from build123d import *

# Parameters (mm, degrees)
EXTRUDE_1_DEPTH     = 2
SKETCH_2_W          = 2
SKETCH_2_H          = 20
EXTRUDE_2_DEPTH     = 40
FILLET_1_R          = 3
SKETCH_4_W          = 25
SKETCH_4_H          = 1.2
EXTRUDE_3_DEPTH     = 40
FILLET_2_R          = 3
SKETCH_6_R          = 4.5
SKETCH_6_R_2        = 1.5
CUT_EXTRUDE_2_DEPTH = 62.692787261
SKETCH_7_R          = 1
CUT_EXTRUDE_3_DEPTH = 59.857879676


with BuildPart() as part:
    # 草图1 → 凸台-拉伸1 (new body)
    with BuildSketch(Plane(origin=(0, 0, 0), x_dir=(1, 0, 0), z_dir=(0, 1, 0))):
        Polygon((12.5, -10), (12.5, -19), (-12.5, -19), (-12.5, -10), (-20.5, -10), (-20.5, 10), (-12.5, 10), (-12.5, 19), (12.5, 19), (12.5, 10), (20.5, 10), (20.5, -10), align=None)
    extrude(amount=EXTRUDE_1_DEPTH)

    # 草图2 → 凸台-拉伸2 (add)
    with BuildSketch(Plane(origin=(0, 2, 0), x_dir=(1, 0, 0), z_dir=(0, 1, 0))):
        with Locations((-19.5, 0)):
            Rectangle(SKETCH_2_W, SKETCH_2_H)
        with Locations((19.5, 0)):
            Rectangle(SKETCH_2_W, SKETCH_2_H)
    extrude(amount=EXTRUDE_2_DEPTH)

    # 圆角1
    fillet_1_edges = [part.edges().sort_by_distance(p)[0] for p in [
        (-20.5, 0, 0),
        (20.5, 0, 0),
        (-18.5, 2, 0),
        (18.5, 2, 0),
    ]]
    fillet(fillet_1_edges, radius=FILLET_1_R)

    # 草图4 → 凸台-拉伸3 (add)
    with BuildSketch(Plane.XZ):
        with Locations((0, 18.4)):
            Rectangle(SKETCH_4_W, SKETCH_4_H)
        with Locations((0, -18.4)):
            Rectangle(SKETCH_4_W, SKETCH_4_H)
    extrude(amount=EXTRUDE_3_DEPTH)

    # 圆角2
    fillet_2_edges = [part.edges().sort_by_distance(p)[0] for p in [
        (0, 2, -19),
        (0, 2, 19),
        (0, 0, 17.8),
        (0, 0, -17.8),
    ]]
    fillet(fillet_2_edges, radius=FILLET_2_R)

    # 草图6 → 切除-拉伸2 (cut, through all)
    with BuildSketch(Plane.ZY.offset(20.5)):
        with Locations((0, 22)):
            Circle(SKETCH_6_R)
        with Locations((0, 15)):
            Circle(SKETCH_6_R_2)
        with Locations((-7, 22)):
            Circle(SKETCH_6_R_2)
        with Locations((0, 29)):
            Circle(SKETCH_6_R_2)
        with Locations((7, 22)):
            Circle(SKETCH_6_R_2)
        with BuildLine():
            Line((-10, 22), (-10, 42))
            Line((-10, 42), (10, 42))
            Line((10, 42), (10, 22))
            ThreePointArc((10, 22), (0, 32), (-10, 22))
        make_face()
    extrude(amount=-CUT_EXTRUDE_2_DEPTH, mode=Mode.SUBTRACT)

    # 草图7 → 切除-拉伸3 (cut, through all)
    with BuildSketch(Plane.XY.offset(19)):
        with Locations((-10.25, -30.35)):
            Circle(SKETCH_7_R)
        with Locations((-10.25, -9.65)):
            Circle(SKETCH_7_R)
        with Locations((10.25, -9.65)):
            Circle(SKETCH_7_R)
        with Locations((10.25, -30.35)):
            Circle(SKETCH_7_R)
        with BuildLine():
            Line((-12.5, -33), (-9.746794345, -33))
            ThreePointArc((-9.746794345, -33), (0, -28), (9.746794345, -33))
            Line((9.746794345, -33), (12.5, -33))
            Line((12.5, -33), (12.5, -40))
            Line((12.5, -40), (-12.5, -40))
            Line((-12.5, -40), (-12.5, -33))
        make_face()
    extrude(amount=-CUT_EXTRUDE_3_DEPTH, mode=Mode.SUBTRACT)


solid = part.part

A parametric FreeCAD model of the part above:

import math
import FreeCAD as App
import Part
import Sketcher

V = App.Vector
Q = App.Units.Quantity


def edges_at(feature, points):
    """Names of the edges that pass closest to the given points."""
    edges = feature.Shape.Edges
    near = lambda p: min(range(len(edges)), key=lambda i: edges[i].distToShape(Part.Vertex(*p))[0])
    return sorted({f"Edge{near(p) + 1}" for p in points})


def add_polygon(sketch, points):
    """Adds a closed chain of lines whose ends are joined by coincident constraints."""
    first, n = sketch.GeometryCount, len(points)
    for a, b in zip(points, points[1:] + points[:1]):
        sketch.addGeometry(Part.LineSegment(App.Vector(*a, 0), App.Vector(*b, 0)), False)
    for i in range(n):
        sketch.addConstraint(Sketcher.Constraint("Coincident", first + i, 2, first + (i + 1) % n, 1))

doc = App.newDocument("Part")
body = doc.addObject("PartDesign::Body", "Body")

sketch1 = body.newObject("Sketcher::SketchObject", "Sketch")
sketch1.AttachmentSupport = (doc.getObject("XZ_Plane"), [""])
sketch1.MapMode = "FlatFace"
add_polygon(sketch1, [(12, 19), (12, 10), (20, 10), (20, -10), (12, -10), (12, -19), (-12, -19), (-12, -10), (-20, -10), (-20, 10), (-12, 10), (-12, 19)])
sketch1.addConstraint(Sketcher.Constraint("Vertical", 0))
sketch1.addConstraint(Sketcher.Constraint("Horizontal", 1))
sketch1.addConstraint(Sketcher.Constraint("Vertical", 2))
sketch1.addConstraint(Sketcher.Constraint("Horizontal", 3))
sketch1.addConstraint(Sketcher.Constraint("Vertical", 4))
sketch1.addConstraint(Sketcher.Constraint("Horizontal", 5))
sketch1.addConstraint(Sketcher.Constraint("Vertical", 6))
sketch1.addConstraint(Sketcher.Constraint("Horizontal", 7))
sketch1.addConstraint(Sketcher.Constraint("Vertical", 8))
sketch1.addConstraint(Sketcher.Constraint("Horizontal", 9))
sketch1.addConstraint(Sketcher.Constraint("Vertical", 10))
sketch1.addConstraint(Sketcher.Constraint("Horizontal", 11))
sketch1.addConstraint(Sketcher.Constraint("Symmetric", 0, 2, 6, 2, -1, 1))
sketch1.addConstraint(Sketcher.Constraint("Symmetric", 2, 2, 8, 2, -1, 1))
sketch1.addConstraint(Sketcher.Constraint("Symmetric", 4, 2, 10, 2, -1, 1))
sketch1.addConstraint(Sketcher.Constraint("Symmetric", 3, 2, 6, 2, -2))
sketch1.addConstraint(Sketcher.Constraint("DistanceX", 1, 1, 1, 2, Q("8 mm")))
sketch1.addConstraint(Sketcher.Constraint("DistanceX", 5, 2, 5, 1, Q("25 mm")))
sketch1.addConstraint(Sketcher.Constraint("DistanceY", 0, 2, 0, 1, Q("9 mm")))
sketch1.addConstraint(Sketcher.Constraint("DistanceY", 2, 2, 2, 1, Q("20 mm")))
pad1 = body.newObject("PartDesign::Pad", "Pad")
pad1.Profile = sketch1
pad1.Length = 2
pad1.Reversed = True

sketch2 = body.newObject("Sketcher::SketchObject", "Sketch001")
sketch2.AttachmentSupport = (doc.getObject("XZ_Plane"), [""])
sketch2.MapMode = "FlatFace"
sketch2.AttachmentOffset = App.Placement(V(0, 0, -2), App.Rotation())
add_polygon(sketch2, [(-20.5, -10), (-20.5, 10), (-18.5, 10), (-18.5, -10)])
add_polygon(sketch2, [(18.5, -10), (18.5, 10), (20.5, 10), (20.5, -10)])
sketch2.addConstraint(Sketcher.Constraint("Vertical", 0))
sketch2.addConstraint(Sketcher.Constraint("Horizontal", 1))
sketch2.addConstraint(Sketcher.Constraint("Vertical", 2))
sketch2.addConstraint(Sketcher.Constraint("Horizontal", 3))
sketch2.addConstraint(Sketcher.Constraint("Vertical", 4))
sketch2.addConstraint(Sketcher.Constraint("Horizontal", 5))
sketch2.addConstraint(Sketcher.Constraint("Vertical", 6))
sketch2.addConstraint(Sketcher.Constraint("Horizontal", 7))
sketch2.addConstraint(Sketcher.Constraint("Symmetric", 2, 2, 4, 2, -1, 1))
sketch2.addConstraint(Sketcher.Constraint("Symmetric", 0, 2, 6, 2, -1, 1))
sketch2.addConstraint(Sketcher.Constraint("Horizontal", 1, 2, 4, 2))
sketch2.addConstraint(Sketcher.Constraint("DistanceX", 1, 1, 1, 2, Q("2 mm")))
sketch2.addConstraint(Sketcher.Constraint("DistanceY", 0, 1, 0, 2, Q("20 mm")))
sketch2.addConstraint(Sketcher.Constraint("DistanceX", 1, 2, 4, 2, Q("37 mm")))
pad2 = body.newObject("PartDesign::Pad", "Pad001")
pad2.Profile = sketch2
pad2.Length = 40
pad2.Reversed = True
doc.recompute()

fillet = body.newObject("PartDesign::Fillet", "Fillet")
fillet.Base = (pad2, edges_at(pad2, [
    (-20.5, 0, 0),
    (20.5, 0, 0),
    (-18.5, 2, 0),
    (18.5, 2, 0),
]))
fillet.Radius = 3

sketch3 = body.newObject("Sketcher::SketchObject", "Sketch002")
sketch3.AttachmentSupport = (doc.getObject("XZ_Plane"), [""])
sketch3.MapMode = "FlatFace"
add_polygon(sketch3, [(-12.5, 19), (-12.5, 17.8), (12.5, 17.8), (12.5, 19)])
add_polygon(sketch3, [(-12.5, -17.8), (-12.5, -19), (12.5, -19), (12.5, -17.8)])
sketch3.addConstraint(Sketcher.Constraint("Vertical", 0))
sketch3.addConstraint(Sketcher.Constraint("Horizontal", 1))
sketch3.addConstraint(Sketcher.Constraint("Vertical", 2))
sketch3.addConstraint(Sketcher.Constraint("Horizontal", 3))
sketch3.addConstraint(Sketcher.Constraint("Vertical", 4))
sketch3.addConstraint(Sketcher.Constraint("Horizontal", 5))
sketch3.addConstraint(Sketcher.Constraint("Vertical", 6))
sketch3.addConstraint(Sketcher.Constraint("Horizontal", 7))
sketch3.addConstraint(Sketcher.Constraint("Symmetric", 2, 2, 4, 2, -1, 1))
sketch3.addConstraint(Sketcher.Constraint("Symmetric", 0, 2, 6, 2, -1, 1))
sketch3.addConstraint(Sketcher.Constraint("Vertical", 3, 2, 4, 2))
sketch3.addConstraint(Sketcher.Constraint("DistanceX", 1, 1, 1, 2, Q("25 mm")))
sketch3.addConstraint(Sketcher.Constraint("DistanceY", 0, 2, 0, 1, Q("1.2 mm")))
sketch3.addConstraint(Sketcher.Constraint("DistanceY", -1, 1, 2, 2, Q("19 mm")))
pad3 = body.newObject("PartDesign::Pad", "Pad002")
pad3.Profile = sketch3
pad3.Length = 40
doc.recompute()

fillet2 = body.newObject("PartDesign::Fillet", "Fillet001")
fillet2.Base = (pad3, edges_at(pad3, [
    (0, 2, -19),
    (0, 2, 19),
    (0, 0, 17.8),
    (0, 0, -17.8),
]))
fillet2.Radius = 3

sketch4 = body.newObject("Sketcher::SketchObject", "Sketch003")
sketch4.AttachmentSupport = (doc.getObject("YZ_Plane"), [""])
sketch4.MapMode = "FlatFace"
sketch4.AttachmentOffset = App.Placement(V(0, 0, -20.5), App.Rotation())
sketch4.addGeometry(Part.Circle(V(22, 0, 0), V(0, 0, 1), 4.5), False)
sketch4.addGeometry(Part.Circle(V(15, 0, 0), V(0, 0, 1), 1.5), False)
sketch4.addGeometry(Part.Circle(V(22, -7, 0), V(0, 0, 1), 1.5), False)
sketch4.addGeometry(Part.Circle(V(29, 0, 0), V(0, 0, 1), 1.5), False)
sketch4.addGeometry(Part.Circle(V(22, 7, 0), V(0, 0, 1), 1.5), False)
sketch4.addGeometry(Part.LineSegment(V(42, -10, 0), V(22, -10, 0)), False)
sketch4.addGeometry(Part.ArcOfCircle(Part.Circle(V(22, 0, 0), V(0, 0, 1), 10), math.radians(-90), math.radians(90)), False)
sketch4.addGeometry(Part.LineSegment(V(22, 10, 0), V(42, 10, 0)), False)
sketch4.addGeometry(Part.LineSegment(V(42, 10, 0), V(42, -10, 0)), False)
sketch4.addConstraint(Sketcher.Constraint("Tangent", 5, 2, 6, 1))
sketch4.addConstraint(Sketcher.Constraint("Tangent", 6, 2, 7, 1))
sketch4.addConstraint(Sketcher.Constraint("Coincident", 7, 2, 8, 1))
sketch4.addConstraint(Sketcher.Constraint("Coincident", 8, 2, 5, 1))
sketch4.addConstraint(Sketcher.Constraint("Horizontal", 5))
sketch4.addConstraint(Sketcher.Constraint("Horizontal", 7))
sketch4.addConstraint(Sketcher.Constraint("Vertical", 8))
sketch4.addConstraint(Sketcher.Constraint("Coincident", 6, 3, 0, 3))
sketch4.addConstraint(Sketcher.Constraint("Equal", 1, 2))
sketch4.addConstraint(Sketcher.Constraint("Equal", 2, 3))
sketch4.addConstraint(Sketcher.Constraint("Equal", 3, 4))
sketch4.addConstraint(Sketcher.Constraint("Symmetric", 2, 3, 4, 3, -1))
sketch4.addConstraint(Sketcher.Constraint("PointOnObject", 0, 3, -1))
sketch4.addConstraint(Sketcher.Constraint("PointOnObject", 1, 3, -1))
sketch4.addConstraint(Sketcher.Constraint("PointOnObject", 3, 3, -1))
sketch4.addConstraint(Sketcher.Constraint("Vertical", 0, 3, 2, 3))
sketch4.addConstraint(Sketcher.Constraint("Equal", 7, 8))
sketch4.addConstraint(Sketcher.Constraint("Diameter", 0, Q("9 mm")))
sketch4.addConstraint(Sketcher.Constraint("Diameter", 1, Q("3 mm")))
sketch4.addConstraint(Sketcher.Constraint("Radius", 6, Q("10 mm")))
sketch4.addConstraint(Sketcher.Constraint("DistanceX", -1, 1, 0, 3, Q("22 mm")))
sketch4.addConstraint(Sketcher.Constraint("DistanceX", -1, 1, 1, 3, Q("15 mm")))
sketch4.addConstraint(Sketcher.Constraint("DistanceY", 2, 3, -1, 1, Q("7 mm")))
sketch4.addConstraint(Sketcher.Constraint("DistanceX", -1, 1, 3, 3, Q("29 mm")))
pocket1 = body.newObject("PartDesign::Pocket", "Pocket")
pocket1.Profile = sketch4
pocket1.Type = "ThroughAll"
pocket1.Reversed = True

sketch5 = body.newObject("Sketcher::SketchObject", "Sketch004")
sketch5.AttachmentSupport = (doc.getObject("XY_Plane"), [""])
sketch5.MapMode = "FlatFace"
sketch5.AttachmentOffset = App.Placement(V(0, 0, 19), App.Rotation())
sketch5.addGeometry(Part.Circle(V(-10.2, -30.4, 0), V(0, 0, 1), 1), False)
sketch5.addGeometry(Part.Circle(V(-10.2, -9.7, 0), V(0, 0, 1), 1), False)
sketch5.addGeometry(Part.Circle(V(10.2, -9.7, 0), V(0, 0, 1), 1), False)
sketch5.addGeometry(Part.Circle(V(10.2, -30.4, 0), V(0, 0, 1), 1), False)
sketch5.addGeometry(Part.LineSegment(V(-9.7, -33, 0), V(-12.5, -33, 0)), False)
sketch5.addGeometry(Part.LineSegment(V(-12.5, -33, 0), V(-12.5, -40, 0)), False)
sketch5.addGeometry(Part.LineSegment(V(-12.5, -40, 0), V(12.5, -40, 0)), False)
sketch5.addGeometry(Part.LineSegment(V(12.5, -40, 0), V(12.5, -33, 0)), False)
sketch5.addGeometry(Part.LineSegment(V(12.5, -33, 0), V(9.7, -33, 0)), False)
sketch5.addGeometry(Part.ArcOfCircle(Part.Circle(V(0, -40, 0), V(0, 0, 1), 12), math.radians(36), math.radians(144)), False)
sketch5.addConstraint(Sketcher.Constraint("Coincident", 4, 2, 5, 1))
sketch5.addConstraint(Sketcher.Constraint("Coincident", 5, 2, 6, 1))
sketch5.addConstraint(Sketcher.Constraint("Coincident", 6, 2, 7, 1))
sketch5.addConstraint(Sketcher.Constraint("Coincident", 7, 2, 8, 1))
sketch5.addConstraint(Sketcher.Constraint("Coincident", 8, 2, 9, 1))
sketch5.addConstraint(Sketcher.Constraint("Coincident", 9, 2, 4, 1))
sketch5.addConstraint(Sketcher.Constraint("Horizontal", 4))
sketch5.addConstraint(Sketcher.Constraint("Vertical", 5))
sketch5.addConstraint(Sketcher.Constraint("Horizontal", 6))
sketch5.addConstraint(Sketcher.Constraint("Vertical", 7))
sketch5.addConstraint(Sketcher.Constraint("Horizontal", 8))
sketch5.addConstraint(Sketcher.Constraint("Equal", 0, 1))
sketch5.addConstraint(Sketcher.Constraint("Equal", 1, 2))
sketch5.addConstraint(Sketcher.Constraint("Equal", 2, 3))
sketch5.addConstraint(Sketcher.Constraint("Symmetric", 1, 3, 2, 3, -2))
sketch5.addConstraint(Sketcher.Constraint("Symmetric", 0, 3, 3, 3, -2))
sketch5.addConstraint(Sketcher.Constraint("Symmetric", 4, 2, 7, 2, -2))
sketch5.addConstraint(Sketcher.Constraint("PointOnObject", 9, 3, -2))
sketch5.addConstraint(Sketcher.Constraint("Horizontal", 9, 3, 5, 2))
sketch5.addConstraint(Sketcher.Constraint("Vertical", 0, 3, 1, 3))
sketch5.addConstraint(Sketcher.Constraint("Diameter", 0, Q("2 mm")))
sketch5.addConstraint(Sketcher.Constraint("Radius", 9, Q("12 mm")))
sketch5.addConstraint(Sketcher.Constraint("DistanceX", 6, 1, 6, 2, Q("25 mm")))
sketch5.addConstraint(Sketcher.Constraint("DistanceY", 5, 2, 5, 1, Q("7 mm")))
sketch5.addConstraint(Sketcher.Constraint("DistanceY", 9, 3, -1, 1, Q("40 mm")))
sketch5.addConstraint(Sketcher.Constraint("DistanceY", 0, 3, 1, 3, Q("20.7 mm")))
sketch5.addConstraint(Sketcher.Constraint("DistanceX", 1, 3, 2, 3, Q("20.5 mm")))
sketch5.addConstraint(Sketcher.Constraint("DistanceY", 0, 3, -1, 1, Q("30.35 mm")))
pocket2 = body.newObject("PartDesign::Pocket", "Pocket001")
pocket2.Profile = sketch5
pocket2.Type = "ThroughAll"

doc.recompute()
